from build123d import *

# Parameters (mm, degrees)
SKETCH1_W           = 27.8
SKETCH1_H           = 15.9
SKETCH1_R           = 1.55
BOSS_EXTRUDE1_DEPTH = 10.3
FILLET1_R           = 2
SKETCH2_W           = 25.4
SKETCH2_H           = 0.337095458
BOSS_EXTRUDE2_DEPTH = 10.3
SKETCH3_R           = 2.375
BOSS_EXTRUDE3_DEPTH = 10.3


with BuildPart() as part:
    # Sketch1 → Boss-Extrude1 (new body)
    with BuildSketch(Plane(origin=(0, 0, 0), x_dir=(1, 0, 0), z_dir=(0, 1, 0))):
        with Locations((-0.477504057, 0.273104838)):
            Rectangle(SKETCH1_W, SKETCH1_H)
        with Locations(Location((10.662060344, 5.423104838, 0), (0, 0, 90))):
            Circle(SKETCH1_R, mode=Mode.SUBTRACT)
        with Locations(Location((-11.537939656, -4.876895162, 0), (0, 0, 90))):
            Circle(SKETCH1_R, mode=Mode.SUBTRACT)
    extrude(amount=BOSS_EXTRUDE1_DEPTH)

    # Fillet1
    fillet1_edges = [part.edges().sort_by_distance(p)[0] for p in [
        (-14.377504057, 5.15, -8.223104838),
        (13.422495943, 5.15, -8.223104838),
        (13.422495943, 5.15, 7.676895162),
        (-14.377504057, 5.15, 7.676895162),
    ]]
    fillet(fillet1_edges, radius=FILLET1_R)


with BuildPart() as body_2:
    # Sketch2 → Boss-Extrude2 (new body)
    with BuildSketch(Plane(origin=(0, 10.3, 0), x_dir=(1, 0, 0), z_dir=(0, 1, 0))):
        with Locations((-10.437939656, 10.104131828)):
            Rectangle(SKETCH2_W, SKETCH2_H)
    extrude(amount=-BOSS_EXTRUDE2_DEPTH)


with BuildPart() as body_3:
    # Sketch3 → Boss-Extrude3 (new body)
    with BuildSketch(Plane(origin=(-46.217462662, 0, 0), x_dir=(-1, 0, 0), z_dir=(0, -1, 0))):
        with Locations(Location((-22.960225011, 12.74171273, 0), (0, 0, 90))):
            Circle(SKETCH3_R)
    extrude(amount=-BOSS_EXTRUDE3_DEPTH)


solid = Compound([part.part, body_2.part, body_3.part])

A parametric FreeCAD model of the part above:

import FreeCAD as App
import Part
import Sketcher


def edges_at(feature, points):
    """Names of the edges that pass closest to the given points."""
    edges = feature.Shape.Edges
    near = lambda p: min(range(len(edges)), key=lambda i: edges[i].distToShape(Part.Vertex(*p))[0])
    return sorted({f"Edge{near(p) + 1}" for p in points})

doc = App.newDocument("Part")
body = doc.addObject("PartDesign::Body", "Body")

# Sketch on XZ plane
sketch1 = doc.addObject("Sketcher::SketchObject", "Sketch")
body.addObject(sketch1)
sketch1.AttachmentSupport = (doc.XZ_Plane, [""])
sketch1.MapMode = "FlatFace"
sketch1.addGeometry(Part.LineSegment(App.Vector(-14.4, -8.2, 0), App.Vector(-14.4, 7.7, 0)), False)
sketch1.addGeometry(Part.LineSegment(App.Vector(-14.4, 7.7, 0), App.Vector(13.4, 7.7, 0)), False)
sketch1.addGeometry(Part.LineSegment(App.Vector(13.4, 7.7, 0), App.Vector(13.4, -8.2, 0)), False)
sketch1.addGeometry(Part.LineSegment(App.Vector(13.4, -8.2, 0), App.Vector(-14.4, -8.2, 0)), False)
sketch1.addGeometry(Part.Circle(App.Vector(-11.5, 4.9, 0), App.Vector(0, 0, 1), 1.6), False)
sketch1.addGeometry(Part.Circle(App.Vector(10.7, -5.4, 0), App.Vector(0, 0, 1), 1.6), False)
sketch1.addConstraint(Sketcher.Constraint("Coincident", 0, 2, 1, 1))
sketch1.addConstraint(Sketcher.Constraint("Coincident", 1, 2, 2, 1))
sketch1.addConstraint(Sketcher.Constraint("Coincident", 2, 2, 3, 1))
sketch1.addConstraint(Sketcher.Constraint("Coincident", 3, 2, 0, 1))
sketch1.addConstraint(Sketcher.Constraint("Vertical", 0))
sketch1.addConstraint(Sketcher.Constraint("Horizontal", 1))
sketch1.addConstraint(Sketcher.Constraint("Vertical", 2))
sketch1.addConstraint(Sketcher.Constraint("Horizontal", 3))
sketch1.addConstraint(Sketcher.Constraint("Equal", 4, 5))
sketch1.addConstraint(Sketcher.Constraint("Diameter", 4, 3.1))
sketch1.addConstraint(Sketcher.Constraint("DistanceX", 1, 1, 1, 2, 27.8))
sketch1.addConstraint(Sketcher.Constraint("DistanceY", 0, 1, 0, 2, 15.9))
sketch1.addConstraint(Sketcher.Constraint("DistanceX", 4, 3, 5, 3, 22.2))
sketch1.addConstraint(Sketcher.Constraint("DistanceY", 5, 3, 4, 3, 10.3))
sketch1.addConstraint(Sketcher.Constraint("DistanceY", 4, 3, 0, 2, 2.8))
sketch1.addConstraint(Sketcher.Constraint("DistanceX", 4, 3, -1, 1, 11.53794))
sketch1.addConstraint(Sketcher.Constraint("DistanceY", -1, 1, 4, 3, 4.876895))
sketch1.addConstraint(Sketcher.Constraint("DistanceX", 0, 2, -1, 1, 14.377504))
pad1 = doc.addObject("PartDesign::Pad", "Pad")
body.addObject(pad1)
pad1.Profile = sketch1
pad1.Length = 10.3
pad1.Reversed = True
doc.recompute()

fillet = doc.addObject("PartDesign::Fillet", "Fillet")
body.addObject(fillet)
fillet.Base = (pad1, edges_at(pad1, [
    (-14.378, 5.15, -8.223),
    (13.422, 5.15, -8.223),
    (13.422, 5.15, 7.677),
    (-14.378, 5.15, 7.677),
]))
fillet.Radius = 2
body2 = doc.addObject("PartDesign::Body", "Body001")

# Sketch on XZ plane
sketch2 = doc.addObject("Sketcher::SketchObject", "Sketch001")
body2.addObject(sketch2)
sketch2.AttachmentSupport = (doc.getObject("XZ_Plane001"), [""])
sketch2.MapMode = "FlatFace"
sketch2.AttachmentOffset = App.Placement(App.Vector(0, 0, -10.3), App.Rotation())
sketch2.addGeometry(Part.LineSegment(App.Vector(-23.14, -10.27, 0), App.Vector(-23.14, -9.94, 0)), False)
sketch2.addGeometry(Part.LineSegment(App.Vector(-23.14, -9.94, 0), App.Vector(2.26, -9.94, 0)), False)
sketch2.addGeometry(Part.LineSegment(App.Vector(2.26, -9.94, 0), App.Vector(2.26, -10.27, 0)), False)
sketch2.addGeometry(Part.LineSegment(App.Vector(2.26, -10.27, 0), App.Vector(-23.14, -10.27, 0)), False)
sketch2.addConstraint(Sketcher.Constraint("Coincident", 0, 2, 1, 1))
sketch2.addConstraint(Sketcher.Constraint("Coincident", 1, 2, 2, 1))
sketch2.addConstraint(Sketcher.Constraint("Coincident", 2, 2, 3, 1))
sketch2.addConstraint(Sketcher.Constraint("Coincident", 3, 2, 0, 1))
sketch2.addConstraint(Sketcher.Constraint("Vertical", 0))
sketch2.addConstraint(Sketcher.Constraint("Horizontal", 1))
sketch2.addConstraint(Sketcher.Constraint("Vertical", 2))
sketch2.addConstraint(Sketcher.Constraint("Horizontal", 3))
sketch2.addConstraint(Sketcher.Constraint("DistanceX", 1, 1, 1, 2, 25.4))
sketch2.addConstraint(Sketcher.Constraint("DistanceY", 0, 1, 0, 2, 0.337095))
sketch2.addConstraint(Sketcher.Constraint("DistanceX", 0, 2, -1, 1, 23.13794))
sketch2.addConstraint(Sketcher.Constraint("DistanceY", 2, 2, -1, 1, 10.27268))
pad2 = doc.addObject("PartDesign::Pad", "Pad001")
body2.addObject(pad2)
pad2.Profile = sketch2
pad2.Length = 10.3
body3 = doc.addObject("PartDesign::Body", "Body002")

# Sketch on XZ plane
sketch3 = doc.addObject("Sketcher::SketchObject", "Sketch002")
body3.addObject(sketch3)
sketch3.AttachmentSupport = (doc.getObject("XZ_Plane002"), [""])
sketch3.MapMode = "FlatFace"
sketch3.addGeometry(Part.Circle(App.Vector(-23.3, -12.7, 0), App.Vector(0, 0, 1), 2.4), False)
sketch3.addConstraint(Sketcher.Constraint("Diameter", 0, 4.75))
sketch3.addConstraint(Sketcher.Constraint("DistanceX", 0, 3, -1, 1, 23.257238))
sketch3.addConstraint(Sketcher.Constraint("DistanceY", 0, 3, -1, 1, 12.741713))
pad3 = doc.addObject("PartDesign::Pad", "Pad002")
body3.addObject(pad3)
pad3.Profile = sketch3
pad3.Length = 10.3
pad3.Reversed = True

doc.recompute()
